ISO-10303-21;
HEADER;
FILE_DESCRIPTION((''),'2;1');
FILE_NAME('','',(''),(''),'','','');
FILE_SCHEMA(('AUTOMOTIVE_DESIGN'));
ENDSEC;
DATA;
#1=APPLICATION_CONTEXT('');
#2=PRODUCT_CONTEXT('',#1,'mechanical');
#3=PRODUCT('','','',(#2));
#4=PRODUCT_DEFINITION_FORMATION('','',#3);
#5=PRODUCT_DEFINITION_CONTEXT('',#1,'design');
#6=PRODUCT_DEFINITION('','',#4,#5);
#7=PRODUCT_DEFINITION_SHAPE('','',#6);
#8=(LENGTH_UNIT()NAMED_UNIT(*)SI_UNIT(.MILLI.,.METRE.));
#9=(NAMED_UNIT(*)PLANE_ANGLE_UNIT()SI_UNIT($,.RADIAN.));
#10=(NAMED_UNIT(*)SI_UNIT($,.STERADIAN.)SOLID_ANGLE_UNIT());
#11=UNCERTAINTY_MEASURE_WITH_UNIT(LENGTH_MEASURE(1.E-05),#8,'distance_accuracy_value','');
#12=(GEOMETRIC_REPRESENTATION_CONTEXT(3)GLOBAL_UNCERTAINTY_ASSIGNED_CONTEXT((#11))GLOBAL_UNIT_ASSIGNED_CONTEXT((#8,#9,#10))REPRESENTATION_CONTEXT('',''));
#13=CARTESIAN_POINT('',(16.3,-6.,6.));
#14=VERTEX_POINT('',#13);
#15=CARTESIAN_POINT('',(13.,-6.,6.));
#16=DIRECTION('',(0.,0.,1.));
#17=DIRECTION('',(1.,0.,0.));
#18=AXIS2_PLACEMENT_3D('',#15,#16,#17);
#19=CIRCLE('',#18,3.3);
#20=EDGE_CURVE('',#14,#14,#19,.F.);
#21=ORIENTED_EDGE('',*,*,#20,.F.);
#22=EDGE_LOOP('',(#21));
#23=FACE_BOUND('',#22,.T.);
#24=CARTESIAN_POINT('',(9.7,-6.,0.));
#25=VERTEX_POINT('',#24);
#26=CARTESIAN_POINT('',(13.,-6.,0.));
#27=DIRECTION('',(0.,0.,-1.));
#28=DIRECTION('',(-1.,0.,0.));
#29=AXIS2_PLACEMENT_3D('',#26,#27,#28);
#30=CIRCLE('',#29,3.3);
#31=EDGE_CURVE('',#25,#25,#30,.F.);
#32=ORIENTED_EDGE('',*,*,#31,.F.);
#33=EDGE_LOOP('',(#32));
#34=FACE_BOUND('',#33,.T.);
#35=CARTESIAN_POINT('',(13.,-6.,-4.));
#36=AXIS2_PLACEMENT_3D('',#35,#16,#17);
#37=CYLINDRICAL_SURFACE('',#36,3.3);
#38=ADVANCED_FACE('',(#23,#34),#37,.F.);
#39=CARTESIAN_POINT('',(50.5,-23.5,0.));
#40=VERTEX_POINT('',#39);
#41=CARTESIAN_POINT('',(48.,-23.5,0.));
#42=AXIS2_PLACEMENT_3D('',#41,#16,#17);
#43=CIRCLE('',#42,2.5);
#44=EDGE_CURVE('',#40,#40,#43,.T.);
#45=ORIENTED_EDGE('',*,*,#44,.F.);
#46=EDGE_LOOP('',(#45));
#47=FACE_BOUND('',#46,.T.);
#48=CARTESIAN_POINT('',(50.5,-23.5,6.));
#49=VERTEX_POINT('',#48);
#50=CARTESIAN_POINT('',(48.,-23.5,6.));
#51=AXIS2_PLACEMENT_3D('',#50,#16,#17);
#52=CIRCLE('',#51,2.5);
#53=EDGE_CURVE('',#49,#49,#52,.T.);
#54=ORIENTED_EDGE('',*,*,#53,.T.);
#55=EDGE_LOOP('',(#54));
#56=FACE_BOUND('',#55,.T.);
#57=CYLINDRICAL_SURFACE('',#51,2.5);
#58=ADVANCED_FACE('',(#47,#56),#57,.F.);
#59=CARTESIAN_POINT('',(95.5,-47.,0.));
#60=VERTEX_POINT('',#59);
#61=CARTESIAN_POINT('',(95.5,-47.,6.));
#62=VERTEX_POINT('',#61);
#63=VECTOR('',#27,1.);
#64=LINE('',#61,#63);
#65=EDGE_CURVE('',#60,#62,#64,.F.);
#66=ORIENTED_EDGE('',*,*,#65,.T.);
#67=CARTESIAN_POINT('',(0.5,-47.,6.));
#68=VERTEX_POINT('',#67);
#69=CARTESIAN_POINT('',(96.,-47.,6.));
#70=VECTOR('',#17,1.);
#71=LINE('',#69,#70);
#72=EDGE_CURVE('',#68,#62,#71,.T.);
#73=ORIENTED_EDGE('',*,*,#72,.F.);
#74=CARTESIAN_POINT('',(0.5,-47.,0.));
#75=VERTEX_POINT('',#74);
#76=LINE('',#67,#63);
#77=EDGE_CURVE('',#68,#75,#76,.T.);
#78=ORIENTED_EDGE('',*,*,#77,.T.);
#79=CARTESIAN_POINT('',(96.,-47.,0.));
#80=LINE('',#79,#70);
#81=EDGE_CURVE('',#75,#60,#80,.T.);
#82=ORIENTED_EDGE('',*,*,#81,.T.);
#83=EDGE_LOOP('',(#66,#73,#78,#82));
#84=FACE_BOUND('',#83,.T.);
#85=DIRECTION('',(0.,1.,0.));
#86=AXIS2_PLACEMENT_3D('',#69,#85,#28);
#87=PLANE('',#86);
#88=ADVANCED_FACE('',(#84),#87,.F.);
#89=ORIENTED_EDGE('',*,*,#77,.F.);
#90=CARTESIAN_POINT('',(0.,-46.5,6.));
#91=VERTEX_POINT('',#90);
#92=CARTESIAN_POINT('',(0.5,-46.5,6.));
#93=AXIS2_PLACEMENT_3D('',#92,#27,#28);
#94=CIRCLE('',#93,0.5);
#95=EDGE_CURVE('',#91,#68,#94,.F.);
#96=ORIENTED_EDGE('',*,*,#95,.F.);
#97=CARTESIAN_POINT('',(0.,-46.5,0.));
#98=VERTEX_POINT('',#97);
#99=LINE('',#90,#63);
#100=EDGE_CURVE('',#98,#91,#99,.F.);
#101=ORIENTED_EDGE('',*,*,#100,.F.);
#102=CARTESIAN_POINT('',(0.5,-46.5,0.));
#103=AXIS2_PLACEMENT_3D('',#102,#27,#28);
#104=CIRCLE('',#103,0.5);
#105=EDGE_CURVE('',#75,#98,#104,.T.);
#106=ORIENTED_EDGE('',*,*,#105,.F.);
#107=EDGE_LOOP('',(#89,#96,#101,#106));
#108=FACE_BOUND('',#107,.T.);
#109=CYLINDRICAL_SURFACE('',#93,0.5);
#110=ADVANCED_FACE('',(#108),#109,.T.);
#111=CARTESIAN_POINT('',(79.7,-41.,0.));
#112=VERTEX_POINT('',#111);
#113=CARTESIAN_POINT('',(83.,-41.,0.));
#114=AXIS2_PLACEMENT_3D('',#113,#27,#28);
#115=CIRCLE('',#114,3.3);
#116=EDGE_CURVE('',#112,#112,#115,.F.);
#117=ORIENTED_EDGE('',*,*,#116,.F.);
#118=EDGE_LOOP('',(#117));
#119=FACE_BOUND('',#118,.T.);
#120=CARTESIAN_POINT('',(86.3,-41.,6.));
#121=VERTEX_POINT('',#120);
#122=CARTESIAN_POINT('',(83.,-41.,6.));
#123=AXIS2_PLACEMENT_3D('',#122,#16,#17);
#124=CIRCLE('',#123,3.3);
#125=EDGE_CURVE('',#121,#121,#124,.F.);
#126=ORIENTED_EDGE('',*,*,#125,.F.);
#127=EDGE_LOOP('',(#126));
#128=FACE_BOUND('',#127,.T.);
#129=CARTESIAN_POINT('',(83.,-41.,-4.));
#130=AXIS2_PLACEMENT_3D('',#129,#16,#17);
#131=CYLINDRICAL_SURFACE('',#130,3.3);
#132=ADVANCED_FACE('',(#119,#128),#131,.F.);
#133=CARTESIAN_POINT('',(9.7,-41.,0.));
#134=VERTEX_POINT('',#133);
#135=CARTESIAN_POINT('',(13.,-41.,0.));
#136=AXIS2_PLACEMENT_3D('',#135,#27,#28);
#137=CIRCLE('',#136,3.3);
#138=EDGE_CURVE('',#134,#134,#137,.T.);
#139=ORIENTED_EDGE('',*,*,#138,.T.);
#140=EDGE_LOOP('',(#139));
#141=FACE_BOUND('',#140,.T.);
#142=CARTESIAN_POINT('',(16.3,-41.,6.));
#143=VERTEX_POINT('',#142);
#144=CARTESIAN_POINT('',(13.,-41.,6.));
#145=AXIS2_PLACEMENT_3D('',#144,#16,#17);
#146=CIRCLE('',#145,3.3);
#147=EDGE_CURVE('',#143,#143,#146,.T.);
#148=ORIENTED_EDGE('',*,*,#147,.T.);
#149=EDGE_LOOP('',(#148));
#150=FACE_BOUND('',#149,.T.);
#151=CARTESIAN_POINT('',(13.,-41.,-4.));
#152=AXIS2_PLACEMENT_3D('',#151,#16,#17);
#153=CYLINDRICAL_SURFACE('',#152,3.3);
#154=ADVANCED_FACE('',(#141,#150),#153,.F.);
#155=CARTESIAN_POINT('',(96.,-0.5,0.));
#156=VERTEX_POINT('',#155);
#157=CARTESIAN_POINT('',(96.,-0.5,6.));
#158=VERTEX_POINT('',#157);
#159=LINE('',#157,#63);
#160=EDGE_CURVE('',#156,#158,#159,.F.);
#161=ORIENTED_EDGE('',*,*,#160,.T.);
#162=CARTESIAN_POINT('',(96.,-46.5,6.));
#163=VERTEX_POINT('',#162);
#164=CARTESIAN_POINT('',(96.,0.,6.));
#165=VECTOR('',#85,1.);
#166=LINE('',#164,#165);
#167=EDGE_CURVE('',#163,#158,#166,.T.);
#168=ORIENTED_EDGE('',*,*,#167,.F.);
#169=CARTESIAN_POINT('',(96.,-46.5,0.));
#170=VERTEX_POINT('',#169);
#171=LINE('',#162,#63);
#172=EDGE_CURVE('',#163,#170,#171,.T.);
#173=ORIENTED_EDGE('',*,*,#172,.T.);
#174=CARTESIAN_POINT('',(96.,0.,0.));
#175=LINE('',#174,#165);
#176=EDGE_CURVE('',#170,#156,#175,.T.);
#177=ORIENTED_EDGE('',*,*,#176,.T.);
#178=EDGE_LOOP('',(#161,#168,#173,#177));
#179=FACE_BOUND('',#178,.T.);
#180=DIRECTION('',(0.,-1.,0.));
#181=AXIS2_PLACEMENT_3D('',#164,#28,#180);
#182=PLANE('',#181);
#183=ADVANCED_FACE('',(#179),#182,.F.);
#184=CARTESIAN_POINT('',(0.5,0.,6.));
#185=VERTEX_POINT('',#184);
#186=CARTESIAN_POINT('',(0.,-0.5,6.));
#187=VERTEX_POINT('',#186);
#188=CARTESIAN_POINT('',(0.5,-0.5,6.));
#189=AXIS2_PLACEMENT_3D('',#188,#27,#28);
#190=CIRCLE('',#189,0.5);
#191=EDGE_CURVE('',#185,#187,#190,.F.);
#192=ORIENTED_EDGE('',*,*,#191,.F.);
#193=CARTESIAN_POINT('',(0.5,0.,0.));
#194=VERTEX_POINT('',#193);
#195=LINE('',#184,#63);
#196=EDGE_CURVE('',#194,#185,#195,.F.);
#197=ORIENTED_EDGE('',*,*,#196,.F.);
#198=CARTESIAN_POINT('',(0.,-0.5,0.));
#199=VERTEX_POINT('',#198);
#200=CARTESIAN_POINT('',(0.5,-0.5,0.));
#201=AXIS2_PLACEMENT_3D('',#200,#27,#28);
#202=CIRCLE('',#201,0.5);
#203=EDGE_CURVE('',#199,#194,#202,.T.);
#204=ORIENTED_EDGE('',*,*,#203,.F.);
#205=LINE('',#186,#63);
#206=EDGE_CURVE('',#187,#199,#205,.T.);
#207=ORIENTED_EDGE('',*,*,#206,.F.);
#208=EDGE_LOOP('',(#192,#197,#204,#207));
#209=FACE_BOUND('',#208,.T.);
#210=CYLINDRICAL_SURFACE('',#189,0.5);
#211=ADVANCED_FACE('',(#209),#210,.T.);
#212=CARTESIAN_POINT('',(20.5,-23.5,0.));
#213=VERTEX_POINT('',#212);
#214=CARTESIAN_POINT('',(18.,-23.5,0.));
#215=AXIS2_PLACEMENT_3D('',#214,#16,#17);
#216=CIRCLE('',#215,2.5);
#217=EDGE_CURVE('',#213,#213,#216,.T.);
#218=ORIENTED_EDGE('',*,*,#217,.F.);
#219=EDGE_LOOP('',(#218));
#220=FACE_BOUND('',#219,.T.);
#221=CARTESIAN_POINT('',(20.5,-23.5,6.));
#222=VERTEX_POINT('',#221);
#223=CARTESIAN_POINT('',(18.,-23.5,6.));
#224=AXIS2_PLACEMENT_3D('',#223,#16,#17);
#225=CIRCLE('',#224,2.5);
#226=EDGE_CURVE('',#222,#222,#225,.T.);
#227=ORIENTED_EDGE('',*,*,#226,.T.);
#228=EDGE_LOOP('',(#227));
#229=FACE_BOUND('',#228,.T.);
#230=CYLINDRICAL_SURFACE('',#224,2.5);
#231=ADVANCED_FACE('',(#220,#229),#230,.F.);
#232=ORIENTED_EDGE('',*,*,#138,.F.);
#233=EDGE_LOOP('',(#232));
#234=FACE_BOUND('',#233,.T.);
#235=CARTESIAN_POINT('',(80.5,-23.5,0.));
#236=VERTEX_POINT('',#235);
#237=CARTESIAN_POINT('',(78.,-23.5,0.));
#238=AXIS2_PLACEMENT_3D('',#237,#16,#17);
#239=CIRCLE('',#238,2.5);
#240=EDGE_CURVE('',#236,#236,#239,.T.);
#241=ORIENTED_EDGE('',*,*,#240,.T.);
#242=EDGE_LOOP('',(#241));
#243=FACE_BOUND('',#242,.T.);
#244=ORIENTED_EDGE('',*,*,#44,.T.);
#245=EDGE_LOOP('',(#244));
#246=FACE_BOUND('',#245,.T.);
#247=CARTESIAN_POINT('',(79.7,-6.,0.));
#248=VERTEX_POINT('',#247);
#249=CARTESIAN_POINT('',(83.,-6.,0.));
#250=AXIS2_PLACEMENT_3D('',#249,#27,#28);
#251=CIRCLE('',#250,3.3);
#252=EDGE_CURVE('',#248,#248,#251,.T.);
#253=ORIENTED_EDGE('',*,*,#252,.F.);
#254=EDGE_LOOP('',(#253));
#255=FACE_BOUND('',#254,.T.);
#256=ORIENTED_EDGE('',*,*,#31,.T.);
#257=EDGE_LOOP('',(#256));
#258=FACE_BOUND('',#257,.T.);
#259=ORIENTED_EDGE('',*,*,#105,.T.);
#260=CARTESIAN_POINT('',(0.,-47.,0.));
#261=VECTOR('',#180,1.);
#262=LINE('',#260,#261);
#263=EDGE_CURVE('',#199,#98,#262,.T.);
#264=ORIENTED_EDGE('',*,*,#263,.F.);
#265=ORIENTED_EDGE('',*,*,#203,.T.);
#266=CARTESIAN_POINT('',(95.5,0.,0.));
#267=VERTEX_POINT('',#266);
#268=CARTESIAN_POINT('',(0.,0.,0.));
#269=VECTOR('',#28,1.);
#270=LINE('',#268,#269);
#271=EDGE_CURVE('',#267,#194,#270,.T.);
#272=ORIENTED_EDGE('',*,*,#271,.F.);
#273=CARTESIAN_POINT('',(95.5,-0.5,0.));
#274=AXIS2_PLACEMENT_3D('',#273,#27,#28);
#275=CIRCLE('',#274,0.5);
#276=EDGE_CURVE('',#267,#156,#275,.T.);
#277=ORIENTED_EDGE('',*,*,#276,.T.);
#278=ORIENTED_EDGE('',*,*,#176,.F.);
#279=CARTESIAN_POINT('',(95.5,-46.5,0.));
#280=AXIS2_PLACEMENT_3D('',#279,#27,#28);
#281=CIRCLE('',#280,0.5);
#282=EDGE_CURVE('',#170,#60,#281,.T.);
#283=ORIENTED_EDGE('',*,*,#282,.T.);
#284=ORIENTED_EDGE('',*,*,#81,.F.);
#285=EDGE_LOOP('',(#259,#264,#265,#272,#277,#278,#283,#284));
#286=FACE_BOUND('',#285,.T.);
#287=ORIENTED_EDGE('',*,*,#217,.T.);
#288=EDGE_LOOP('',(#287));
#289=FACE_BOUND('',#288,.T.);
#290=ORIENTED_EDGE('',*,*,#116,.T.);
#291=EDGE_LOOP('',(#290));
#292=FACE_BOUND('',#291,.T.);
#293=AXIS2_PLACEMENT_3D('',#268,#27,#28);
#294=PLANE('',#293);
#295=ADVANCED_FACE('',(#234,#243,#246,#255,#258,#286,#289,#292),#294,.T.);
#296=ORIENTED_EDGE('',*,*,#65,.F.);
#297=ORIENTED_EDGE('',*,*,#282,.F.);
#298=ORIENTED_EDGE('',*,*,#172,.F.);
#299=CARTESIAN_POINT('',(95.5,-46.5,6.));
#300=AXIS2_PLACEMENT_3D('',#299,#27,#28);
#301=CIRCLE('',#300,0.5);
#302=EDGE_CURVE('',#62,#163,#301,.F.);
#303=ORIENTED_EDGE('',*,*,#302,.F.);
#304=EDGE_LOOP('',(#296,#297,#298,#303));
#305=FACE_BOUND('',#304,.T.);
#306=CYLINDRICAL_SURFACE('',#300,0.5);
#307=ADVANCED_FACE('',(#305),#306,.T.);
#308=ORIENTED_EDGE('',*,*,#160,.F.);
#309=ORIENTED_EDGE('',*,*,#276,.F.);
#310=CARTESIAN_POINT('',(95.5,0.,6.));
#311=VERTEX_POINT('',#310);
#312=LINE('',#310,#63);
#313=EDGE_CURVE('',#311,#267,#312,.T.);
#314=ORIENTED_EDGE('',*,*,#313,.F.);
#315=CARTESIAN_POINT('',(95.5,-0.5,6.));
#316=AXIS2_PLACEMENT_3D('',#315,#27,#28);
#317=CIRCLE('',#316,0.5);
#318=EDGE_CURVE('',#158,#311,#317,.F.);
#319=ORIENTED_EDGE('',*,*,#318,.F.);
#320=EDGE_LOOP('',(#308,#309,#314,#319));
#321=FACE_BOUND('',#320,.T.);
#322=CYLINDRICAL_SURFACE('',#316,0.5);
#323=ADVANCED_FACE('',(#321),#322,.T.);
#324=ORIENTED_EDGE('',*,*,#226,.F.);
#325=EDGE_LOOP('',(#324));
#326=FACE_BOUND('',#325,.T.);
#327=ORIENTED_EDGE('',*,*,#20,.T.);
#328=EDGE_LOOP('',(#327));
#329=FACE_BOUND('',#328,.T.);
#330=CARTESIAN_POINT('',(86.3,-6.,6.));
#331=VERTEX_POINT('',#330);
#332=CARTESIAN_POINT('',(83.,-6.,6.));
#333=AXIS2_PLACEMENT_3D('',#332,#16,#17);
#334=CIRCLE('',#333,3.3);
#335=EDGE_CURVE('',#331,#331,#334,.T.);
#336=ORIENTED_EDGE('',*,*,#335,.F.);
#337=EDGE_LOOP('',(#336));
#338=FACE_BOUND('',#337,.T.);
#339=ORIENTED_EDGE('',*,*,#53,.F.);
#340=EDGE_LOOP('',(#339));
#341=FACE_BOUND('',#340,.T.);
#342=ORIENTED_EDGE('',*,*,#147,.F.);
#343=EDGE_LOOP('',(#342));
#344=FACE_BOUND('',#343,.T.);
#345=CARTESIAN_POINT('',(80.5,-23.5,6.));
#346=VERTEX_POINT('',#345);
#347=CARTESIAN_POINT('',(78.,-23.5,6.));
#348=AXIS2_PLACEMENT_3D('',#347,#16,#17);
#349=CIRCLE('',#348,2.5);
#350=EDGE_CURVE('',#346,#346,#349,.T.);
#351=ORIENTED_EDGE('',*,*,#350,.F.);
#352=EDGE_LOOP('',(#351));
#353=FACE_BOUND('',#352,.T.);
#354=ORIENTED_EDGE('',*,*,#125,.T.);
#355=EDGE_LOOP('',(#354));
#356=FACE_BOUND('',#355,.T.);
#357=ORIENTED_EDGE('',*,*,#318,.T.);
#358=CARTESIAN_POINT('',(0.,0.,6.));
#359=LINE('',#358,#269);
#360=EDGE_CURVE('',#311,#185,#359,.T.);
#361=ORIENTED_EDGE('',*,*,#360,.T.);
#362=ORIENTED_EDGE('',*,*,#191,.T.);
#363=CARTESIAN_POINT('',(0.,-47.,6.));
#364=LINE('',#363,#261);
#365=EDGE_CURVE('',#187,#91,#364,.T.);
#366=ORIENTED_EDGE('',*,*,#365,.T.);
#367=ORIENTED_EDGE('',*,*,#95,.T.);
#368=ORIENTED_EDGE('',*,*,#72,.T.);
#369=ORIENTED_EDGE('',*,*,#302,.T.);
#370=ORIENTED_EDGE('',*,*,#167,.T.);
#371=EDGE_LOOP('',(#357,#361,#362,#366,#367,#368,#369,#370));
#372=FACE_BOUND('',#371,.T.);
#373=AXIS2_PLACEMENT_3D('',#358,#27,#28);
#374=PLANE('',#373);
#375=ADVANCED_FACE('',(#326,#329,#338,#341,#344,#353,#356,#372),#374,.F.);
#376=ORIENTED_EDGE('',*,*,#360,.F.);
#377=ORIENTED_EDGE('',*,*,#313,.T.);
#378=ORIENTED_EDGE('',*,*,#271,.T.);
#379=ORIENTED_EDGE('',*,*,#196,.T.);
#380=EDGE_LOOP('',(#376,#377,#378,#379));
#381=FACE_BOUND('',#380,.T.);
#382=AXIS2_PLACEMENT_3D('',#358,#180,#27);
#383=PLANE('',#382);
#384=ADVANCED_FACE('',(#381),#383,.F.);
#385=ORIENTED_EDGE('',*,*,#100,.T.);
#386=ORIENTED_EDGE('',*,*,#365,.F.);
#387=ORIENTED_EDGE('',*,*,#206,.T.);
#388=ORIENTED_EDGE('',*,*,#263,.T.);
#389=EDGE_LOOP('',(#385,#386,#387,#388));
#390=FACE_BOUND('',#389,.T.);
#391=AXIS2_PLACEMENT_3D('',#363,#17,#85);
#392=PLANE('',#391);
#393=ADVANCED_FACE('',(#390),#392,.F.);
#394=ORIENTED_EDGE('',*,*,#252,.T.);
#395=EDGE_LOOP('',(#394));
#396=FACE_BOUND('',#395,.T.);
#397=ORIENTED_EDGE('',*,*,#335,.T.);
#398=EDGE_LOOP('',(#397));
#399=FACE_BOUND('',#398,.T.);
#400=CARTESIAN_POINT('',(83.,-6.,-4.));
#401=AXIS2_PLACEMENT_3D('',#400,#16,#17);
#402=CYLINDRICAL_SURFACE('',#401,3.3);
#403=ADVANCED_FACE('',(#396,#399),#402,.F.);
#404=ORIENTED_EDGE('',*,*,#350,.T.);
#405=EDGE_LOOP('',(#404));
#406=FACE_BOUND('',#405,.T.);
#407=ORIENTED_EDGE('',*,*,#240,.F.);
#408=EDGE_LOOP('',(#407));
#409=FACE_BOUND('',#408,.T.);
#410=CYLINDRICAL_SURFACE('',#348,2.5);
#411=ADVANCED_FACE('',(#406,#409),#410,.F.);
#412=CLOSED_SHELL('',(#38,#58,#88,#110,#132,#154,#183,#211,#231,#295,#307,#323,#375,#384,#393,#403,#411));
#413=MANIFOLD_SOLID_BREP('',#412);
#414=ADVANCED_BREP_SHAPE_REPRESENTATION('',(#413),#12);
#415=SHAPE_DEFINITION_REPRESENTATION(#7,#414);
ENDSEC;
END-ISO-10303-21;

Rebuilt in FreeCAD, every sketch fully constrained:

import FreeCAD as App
import Part
import Sketcher
Q = App.Units.Quantity


def edges_at(feature, points):
    """Names of the edges that pass closest to the given points."""
    edges = feature.Shape.Edges
    near = lambda p: min(range(len(edges)), key=lambda i: edges[i].distToShape(Part.Vertex(*p))[0])
    return sorted({f"Edge{near(p) + 1}" for p in points})


def add_polygon(sketch, points):
    """Adds a closed chain of lines whose ends are joined by coincident constraints."""
    first, n = sketch.GeometryCount, len(points)
    for a, b in zip(points, points[1:] + points[:1]):
        sketch.addGeometry(Part.LineSegment(App.Vector(*a, 0), App.Vector(*b, 0)), False)
    for i in range(n):
        sketch.addConstraint(Sketcher.Constraint("Coincident", first + i, 2, first + (i + 1) % n, 1))

doc = App.newDocument("Part")
body = doc.addObject("PartDesign::Body", "Body")

sketch1 = body.newObject("Sketcher::SketchObject", "Sketch")
sketch1.AttachmentSupport = (doc.getObject("XY_Plane"), [""])
sketch1.MapMode = "FlatFace"
add_polygon(sketch1, [(0, 0), (0, -47), (96, -47), (96, 0)])
sketch1.addConstraint([
    Sketcher.Constraint("Vertical", 0),
    Sketcher.Constraint("Horizontal", 1),
    Sketcher.Constraint("Vertical", 2),
    Sketcher.Constraint("Horizontal", 3),
    Sketcher.Constraint("Coincident", 3, 2, -1, 1),
    Sketcher.Constraint("DistanceX", 1, 1, 1, 2, Q("96 mm")),
    Sketcher.Constraint("DistanceY", 0, 2, 0, 1, Q("47 mm")),
])
pad1 = body.newObject("PartDesign::Pad", "Pad")
pad1.Profile = sketch1
pad1.Length = 6

sketch2 = body.newObject("Sketcher::SketchObject", "Sketch001")
sketch2.AttachmentSupport = (doc.getObject("XY_Plane"), [""])
sketch2.MapMode = "FlatFace"
sketch2.AttachmentOffset = App.Placement(App.Vector(0, 0, 6), App.Rotation())
sketch2.addGeometry([
    Part.Circle(App.Vector(83, -6, 0), App.Vector(0, 0, 1), 3.3),
    Part.Circle(App.Vector(83, -41, 0), App.Vector(0, 0, 1), 3.3),
    Part.Circle(App.Vector(13, -41, 0), App.Vector(0, 0, 1), 3.3),
    Part.Circle(App.Vector(13, -6, 0), App.Vector(0, 0, 1), 3.3),
], False)
sketch2.addConstraint([
    Sketcher.Constraint("Equal", 0, 1),
    Sketcher.Constraint("Equal", 1, 2),
    Sketcher.Constraint("Equal", 2, 3),
    Sketcher.Constraint("Horizontal", 1, 3, 2, 3),
    Sketcher.Constraint("Horizontal", 0, 3, 3, 3),
    Sketcher.Constraint("Vertical", 0, 3, 1, 3),
    Sketcher.Constraint("Vertical", 2, 3, 3, 3),
    Sketcher.Constraint("Diameter", 0, Q("6.6 mm")),
    Sketcher.Constraint("DistanceX", -1, 1, 0, 3, Q("83 mm")),
    Sketcher.Constraint("DistanceY", 0, 3, -1, 1, Q("6 mm")),
    Sketcher.Constraint("DistanceY", 1, 3, -1, 1, Q("41 mm")),
    Sketcher.Constraint("DistanceX", -1, 1, 2, 3, Q("13 mm")),
])
pocket1 = body.newObject("PartDesign::Pocket", "Pocket")
pocket1.Profile = sketch2
pocket1.Length = 10

sketch3 = body.newObject("Sketcher::SketchObject", "Sketch002")
sketch3.AttachmentSupport = (doc.getObject("XY_Plane"), [""])
sketch3.MapMode = "FlatFace"
sketch3.AttachmentOffset = App.Placement(App.Vector(0, 0, 6), App.Rotation())
sketch3.addGeometry([
    Part.Circle(App.Vector(18, -23.5, 0), App.Vector(0, 0, 1), 2.5),
    Part.Circle(App.Vector(48, -23.5, 0), App.Vector(0, 0, 1), 2.5),
    Part.Circle(App.Vector(78, -23.5, 0), App.Vector(0, 0, 1), 2.5),
], False)
sketch3.addConstraint([
    Sketcher.Constraint("Equal", 0, 1),
    Sketcher.Constraint("Equal", 1, 2),
    Sketcher.Constraint("Horizontal", 0, 3, 1, 3),
    Sketcher.Constraint("Horizontal", 1, 3, 2, 3),
    Sketcher.Constraint("Diameter", 0, Q("5 mm")),
    Sketcher.Constraint("DistanceX", -1, 1, 0, 3, Q("18 mm")),
    Sketcher.Constraint("DistanceX", -1, 1, 1, 3, Q("48 mm")),
    Sketcher.Constraint("DistanceX", -1, 1, 2, 3, Q("78 mm")),
    Sketcher.Constraint("DistanceY", 0, 3, -1, 1, Q("23.5 mm")),
])
doc.recompute()
hole = body.newObject("PartDesign::Hole", "Hole")
hole.Profile = sketch3
hole.ThreadType = "None"
hole.Diameter = 5
hole.DepthType = "ThroughAll"
doc.recompute()

fillet = body.newObject("PartDesign::Fillet", "Fillet")
fillet.Base = (hole, edges_at(hole, [
    (0, 0, 3),
    (96, 0, 3),
    (96, -47, 3),
    (0, -47, 3),
]))
fillet.Radius = 0.5

doc.recompute()
